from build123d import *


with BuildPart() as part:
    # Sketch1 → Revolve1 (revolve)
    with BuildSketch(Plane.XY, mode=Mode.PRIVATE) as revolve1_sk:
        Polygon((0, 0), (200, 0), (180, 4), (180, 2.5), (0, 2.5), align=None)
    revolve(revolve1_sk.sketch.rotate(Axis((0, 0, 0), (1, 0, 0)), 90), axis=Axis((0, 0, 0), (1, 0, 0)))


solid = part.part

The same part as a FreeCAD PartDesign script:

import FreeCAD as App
import Part
import Sketcher

V = App.Vector


def add_polygon(sketch, points):
    """Adds a closed chain of lines whose ends are joined by coincident constraints."""
    first, n = sketch.GeometryCount, len(points)
    for a, b in zip(points, points[1:] + points[:1]):
        sketch.addGeometry(Part.LineSegment(App.Vector(*a, 0), App.Vector(*b, 0)), False)
    for i in range(n):
        sketch.addConstraint(Sketcher.Constraint("Coincident", first + i, 2, first + (i + 1) % n, 1))

doc = App.newDocument("Part")
body = doc.addObject("PartDesign::Body", "Body")

# Sketch on XY plane
sketch1 = body.newObject("Sketcher::SketchObject", "Sketch")
sketch1.AttachmentSupport = (doc.getObject("XY_Plane"), [""])
sketch1.MapMode = "FlatFace"
add_polygon(sketch1, [(0, 0), (200, 0), (180, 4), (180, 2.5), (0, 2.5)])  # lines 0-4
sketch1.addConstraint([
    Sketcher.Constraint("Horizontal", 0),
    Sketcher.Constraint("Vertical", 2),
    Sketcher.Constraint("Horizontal", 3),
    Sketcher.Constraint("Vertical", 4),
    Sketcher.Constraint("Coincident", 4, 2, -1, 1),
    Sketcher.Constraint("DistanceX", 0, 1, 0, 2, 200.0),
    Sketcher.Constraint("DistanceX", 3, 2, 3, 1, 180.0),
    Sketcher.Constraint("DistanceY", 2, 2, 2, 1, 1.5),
    Sketcher.Constraint("DistanceY", 4, 2, 4, 1, 2.5),
])
revolution = body.newObject("PartDesign::Revolution", "Revolution")
revolution.Profile = sketch1
revolution.ReferenceAxis = (sketch1, ["H_Axis"])
revolution.Angle = 360

doc.recompute()
